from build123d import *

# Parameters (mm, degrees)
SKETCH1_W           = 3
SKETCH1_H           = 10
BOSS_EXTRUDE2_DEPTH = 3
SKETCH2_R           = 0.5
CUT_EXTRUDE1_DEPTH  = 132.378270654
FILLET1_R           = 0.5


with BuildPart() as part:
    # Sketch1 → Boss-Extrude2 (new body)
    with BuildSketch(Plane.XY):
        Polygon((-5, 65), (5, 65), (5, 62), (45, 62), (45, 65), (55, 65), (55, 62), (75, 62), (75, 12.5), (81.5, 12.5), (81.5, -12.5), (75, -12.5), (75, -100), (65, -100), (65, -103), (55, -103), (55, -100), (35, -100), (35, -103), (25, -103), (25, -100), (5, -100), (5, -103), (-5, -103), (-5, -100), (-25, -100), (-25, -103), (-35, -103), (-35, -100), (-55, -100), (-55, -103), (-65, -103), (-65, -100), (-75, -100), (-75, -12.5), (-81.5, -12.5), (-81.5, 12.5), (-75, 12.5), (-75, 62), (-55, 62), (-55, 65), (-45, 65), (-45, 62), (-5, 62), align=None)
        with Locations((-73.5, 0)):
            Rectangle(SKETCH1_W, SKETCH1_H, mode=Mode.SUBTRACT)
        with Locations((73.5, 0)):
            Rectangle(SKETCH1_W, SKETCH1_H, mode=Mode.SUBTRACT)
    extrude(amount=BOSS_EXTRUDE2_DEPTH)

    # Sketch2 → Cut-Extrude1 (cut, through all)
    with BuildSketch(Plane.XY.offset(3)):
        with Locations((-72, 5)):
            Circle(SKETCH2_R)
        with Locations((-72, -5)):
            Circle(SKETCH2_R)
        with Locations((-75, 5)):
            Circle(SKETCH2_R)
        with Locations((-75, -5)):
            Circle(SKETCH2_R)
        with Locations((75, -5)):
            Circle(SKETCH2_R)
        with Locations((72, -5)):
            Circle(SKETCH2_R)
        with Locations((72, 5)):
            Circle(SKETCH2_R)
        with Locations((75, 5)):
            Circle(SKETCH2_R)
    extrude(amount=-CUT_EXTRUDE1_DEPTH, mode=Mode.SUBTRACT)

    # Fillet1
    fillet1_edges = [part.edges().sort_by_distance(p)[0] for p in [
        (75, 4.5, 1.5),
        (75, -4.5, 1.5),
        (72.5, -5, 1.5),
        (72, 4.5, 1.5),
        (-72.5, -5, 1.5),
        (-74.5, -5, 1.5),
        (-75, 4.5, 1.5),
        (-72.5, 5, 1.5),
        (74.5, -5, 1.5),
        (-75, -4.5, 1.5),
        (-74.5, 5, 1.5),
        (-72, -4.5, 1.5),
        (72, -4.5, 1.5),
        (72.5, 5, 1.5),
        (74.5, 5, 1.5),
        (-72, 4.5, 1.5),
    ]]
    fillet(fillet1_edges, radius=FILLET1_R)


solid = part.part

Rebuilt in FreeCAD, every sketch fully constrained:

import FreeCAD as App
import Part
import Sketcher


def edges_at(feature, points):
    """Names of the edges that pass closest to the given points."""
    edges = feature.Shape.Edges
    near = lambda p: min(range(len(edges)), key=lambda i: edges[i].distToShape(Part.Vertex(*p))[0])
    return sorted({f"Edge{near(p) + 1}" for p in points})


def add_polygon(sketch, points):
    """Adds a closed chain of lines whose ends are joined by coincident constraints."""
    first, n = sketch.GeometryCount, len(points)
    for a, b in zip(points, points[1:] + points[:1]):
        sketch.addGeometry(Part.LineSegment(App.Vector(*a, 0), App.Vector(*b, 0)), False)
    for i in range(n):
        sketch.addConstraint(Sketcher.Constraint("Coincident", first + i, 2, first + (i + 1) % n, 1))

doc = App.newDocument("Part")
body = doc.addObject("PartDesign::Body", "Body")

# Sketch on XY plane
sketch1 = body.newObject("Sketcher::SketchObject", "Sketch")
sketch1.AttachmentSupport = (doc.getObject("XY_Plane"), [""])
sketch1.MapMode = "FlatFace"
add_polygon(sketch1, [(5, 65), (-5, 65), (-5, 62), (-45, 62), (-45, 65), (-55, 65), (-55, 62), (-75, 62), (-75, 12.5), (-81.5, 12.5), (-81.5, -12.5), (-75, -12.5), (-75, -100), (-65, -100), (-65, -103), (-55, -103), (-55, -100), (-35, -100), (-35, -103), (-25, -103), (-25, -100), (-5, -100), (-5, -103), (5, -103), (5, -100), (25, -100), (25, -103), (35, -103), (35, -100), (55, -100), (55, -103), (65, -103), (65, -100), (75, -100), (75, -12.5), (81.5, -12.5), (81.5, 12.5), (75, 12.5), (75, 62), (55, 62), (55, 65), (45, 65), (45, 62), (5, 62)])  # lines 0-43
add_polygon(sketch1, [(72, -5), (72, 5), (75, 5), (75, -5)])  # lines 44-47
add_polygon(sketch1, [(-75, -5), (-75, 5), (-72, 5), (-72, -5)])  # lines 48-51
sketch1.addConstraint([
    Sketcher.Constraint("Horizontal", 0),
    Sketcher.Constraint("Vertical", 1),
    Sketcher.Constraint("Horizontal", 2),
    Sketcher.Constraint("Vertical", 3),
    Sketcher.Constraint("Horizontal", 4),
    Sketcher.Constraint("Vertical", 5),
    Sketcher.Constraint("Horizontal", 6),
    Sketcher.Constraint("Vertical", 7),
    Sketcher.Constraint("Horizontal", 8),
    Sketcher.Constraint("Vertical", 9),
    Sketcher.Constraint("Horizontal", 10),
    Sketcher.Constraint("Vertical", 11),
    Sketcher.Constraint("Horizontal", 12),
    Sketcher.Constraint("Vertical", 13),
    Sketcher.Constraint("Horizontal", 14),
    Sketcher.Constraint("Vertical", 15),
    Sketcher.Constraint("Horizontal", 16),
    Sketcher.Constraint("Vertical", 17),
    Sketcher.Constraint("Horizontal", 18),
    Sketcher.Constraint("Vertical", 19),
    Sketcher.Constraint("Horizontal", 20),
    Sketcher.Constraint("Vertical", 21),
    Sketcher.Constraint("Horizontal", 22),
    Sketcher.Constraint("Vertical", 23),
    Sketcher.Constraint("Horizontal", 24),
    Sketcher.Constraint("Vertical", 25),
    Sketcher.Constraint("Horizontal", 26),
    Sketcher.Constraint("Vertical", 27),
    Sketcher.Constraint("Horizontal", 28),
    Sketcher.Constraint("Vertical", 29),
    Sketcher.Constraint("Horizontal", 30),
    Sketcher.Constraint("Vertical", 31),
    Sketcher.Constraint("Horizontal", 32),
    Sketcher.Constraint("Vertical", 33),
    Sketcher.Constraint("Horizontal", 34),
    Sketcher.Constraint("Vertical", 35),
    Sketcher.Constraint("Horizontal", 36),
    Sketcher.Constraint("Vertical", 37),
    Sketcher.Constraint("Horizontal", 38),
    Sketcher.Constraint("Vertical", 39),
    Sketcher.Constraint("Horizontal", 40),
    Sketcher.Constraint("Vertical", 41),
    Sketcher.Constraint("Horizontal", 42),
    Sketcher.Constraint("Vertical", 43),
    Sketcher.Constraint("Vertical", 44),
    Sketcher.Constraint("Horizontal", 45),
    Sketcher.Constraint("Vertical", 46),
    Sketcher.Constraint("Horizontal", 47),
    Sketcher.Constraint("Vertical", 48),
    Sketcher.Constraint("Horizontal", 49),
    Sketcher.Constraint("Vertical", 50),
    Sketcher.Constraint("Horizontal", 51),
    Sketcher.Constraint("Symmetric", 7, 2, 33, 2, -1, 1),
    Sketcher.Constraint("Symmetric", 9, 2, 35, 2, -1, 1),
    Sketcher.Constraint("Symmetric", 46, 2, 48, 2, -1, 1),
    Sketcher.Constraint("Symmetric", 44, 2, 50, 2, -1, 1),
    Sketcher.Constraint("Symmetric", 20, 2, 23, 2, -2),
    Sketcher.Constraint("Symmetric", 18, 2, 25, 2, -2),
    Sketcher.Constraint("Symmetric", 16, 2, 27, 2, -2),
    Sketcher.Constraint("Symmetric", 14, 2, 29, 2, -2),
    Sketcher.Constraint("Symmetric", 12, 2, 31, 2, -2),
    Sketcher.Constraint("Symmetric", 10, 2, 33, 2, -2),
    Sketcher.Constraint("Symmetric", 6, 2, 37, 2, -2),
    Sketcher.Constraint("Symmetric", 4, 2, 39, 2, -2),
    Sketcher.Constraint("Symmetric", 2, 2, 41, 2, -2),
    Sketcher.Constraint("Horizontal", 0, 2, 3, 2),
    Sketcher.Constraint("Horizontal", 2, 2, 5, 2),
    Sketcher.Constraint("Horizontal", 12, 2, 15, 2),
    Sketcher.Constraint("Horizontal", 14, 2, 17, 2),
    Sketcher.Constraint("Horizontal", 16, 2, 19, 2),
    Sketcher.Constraint("Horizontal", 18, 2, 21, 2),
    Sketcher.Constraint("Horizontal", 45, 2, 48, 2),
    Sketcher.Constraint("Vertical", 5, 2, 14, 2),
    Sketcher.Constraint("Vertical", 1, 2, 20, 2),
    Sketcher.Constraint("Vertical", 23, 2, 42, 2),
    Sketcher.Constraint("Vertical", 37, 2, 45, 2),
    Sketcher.Constraint("Equal", 0, 4),
    Sketcher.Constraint("Equal", 4, 12),
    Sketcher.Constraint("Equal", 12, 14),
    Sketcher.Constraint("Equal", 6, 16),
    Sketcher.Constraint("Equal", 14, 18),
    Sketcher.Constraint("Equal", 16, 20),
    Sketcher.Constraint("Equal", 51, 1),
    Sketcher.Constraint("Equal", 5, 13),
    Sketcher.Constraint("Equal", 40, 44),
    Sketcher.Constraint("DistanceX", 0, 2, 0, 1, 10.0),
    Sketcher.Constraint("DistanceX", 45, 1, 45, 2, 3.0),
    Sketcher.Constraint("DistanceY", 9, 2, 9, 1, 25.0),
    Sketcher.Constraint("DistanceX", 8, 2, 8, 1, 6.5),
    Sketcher.Constraint("DistanceY", 7, 2, 7, 1, 49.5),
    Sketcher.Constraint("DistanceY", 11, 2, 11, 1, 87.5),
])
pad1 = body.newObject("PartDesign::Pad", "Pad")
pad1.Profile = sketch1
pad1.Length = 3

# Sketch on XY plane
sketch2 = body.newObject("Sketcher::SketchObject", "Sketch001")
sketch2.AttachmentSupport = (doc.getObject("XY_Plane"), [""])
sketch2.MapMode = "FlatFace"
sketch2.AttachmentOffset = App.Placement(App.Vector(0, 0, 3), App.Rotation())
sketch2.addGeometry([
    Part.Circle(App.Vector(-72, 5, 0), App.Vector(0, 0, 1), 0.5),  # 0
    Part.Circle(App.Vector(-72, -5, 0), App.Vector(0, 0, 1), 0.5),  # 1
    Part.Circle(App.Vector(-75, 5, 0), App.Vector(0, 0, 1), 0.5),  # 2
    Part.Circle(App.Vector(-75, -5, 0), App.Vector(0, 0, 1), 0.5),  # 3
    Part.Circle(App.Vector(75, -5, 0), App.Vector(0, 0, 1), 0.5),  # 4
    Part.Circle(App.Vector(72, -5, 0), App.Vector(0, 0, 1), 0.5),  # 5
    Part.Circle(App.Vector(72, 5, 0), App.Vector(0, 0, 1), 0.5),  # 6
    Part.Circle(App.Vector(75, 5, 0), App.Vector(0, 0, 1), 0.5),  # 7
], False)
sketch2.addConstraint([
    Sketcher.Constraint("Equal", 0, 1),
    Sketcher.Constraint("Equal", 1, 2),
    Sketcher.Constraint("Equal", 2, 3),
    Sketcher.Constraint("Equal", 3, 4),
    Sketcher.Constraint("Equal", 4, 5),
    Sketcher.Constraint("Equal", 5, 6),
    Sketcher.Constraint("Equal", 6, 7),
    Sketcher.Constraint("Symmetric", 2, 3, 4, 3, -1, 1),
    Sketcher.Constraint("Symmetric", 0, 3, 5, 3, -1, 1),
    Sketcher.Constraint("Symmetric", 1, 3, 6, 3, -1, 1),
    Sketcher.Constraint("Symmetric", 3, 3, 7, 3, -1, 1),
    Sketcher.Constraint("Symmetric", 3, 3, 4, 3, -2),
    Sketcher.Constraint("Symmetric", 1, 3, 5, 3, -2),
    Sketcher.Constraint("Horizontal", 0, 3, 2, 3),
    Sketcher.Constraint("Diameter", 0, 1.0),
    Sketcher.Constraint("DistanceX", 0, 3, -1, 1, 72.0),
    Sketcher.Constraint("DistanceY", -1, 1, 0, 3, 5.0),
    Sketcher.Constraint("DistanceX", 2, 3, -1, 1, 75.0),
])
pocket1 = body.newObject("PartDesign::Pocket", "Pocket")
pocket1.Profile = sketch2
pocket1.Type = "ThroughAll"
doc.recompute()

fillet = body.newObject("PartDesign::Fillet", "Fillet")
fillet.Base = (pocket1, edges_at(pocket1, [
    (75, 4.5, 1.5),
    (75, -4.5, 1.5),
    (72.5, -5, 1.5),
    (72, 4.5, 1.5),
    (-72.5, -5, 1.5),
    (-74.5, -5, 1.5),
    (-75, 4.5, 1.5),
    (-72.5, 5, 1.5),
    (74.5, -5, 1.5),
    (-75, -4.5, 1.5),
    (-74.5, 5, 1.5),
    (-72, -4.5, 1.5),
    (72, -4.5, 1.5),
    (72.5, 5, 1.5),
    (74.5, 5, 1.5),
    (-72, 4.5, 1.5),
]))
fillet.Radius = 0.5

doc.recompute()
